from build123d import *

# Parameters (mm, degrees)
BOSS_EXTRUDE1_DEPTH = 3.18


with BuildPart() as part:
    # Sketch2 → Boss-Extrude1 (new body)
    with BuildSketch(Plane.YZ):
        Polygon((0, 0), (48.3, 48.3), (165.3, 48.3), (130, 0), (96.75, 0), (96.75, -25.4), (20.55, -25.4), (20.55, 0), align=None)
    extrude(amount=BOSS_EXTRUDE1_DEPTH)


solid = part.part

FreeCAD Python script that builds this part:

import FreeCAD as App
import Part
import Sketcher
from FreeCAD import Vector
Q = App.Units.Quantity

doc = App.newDocument("Part")
body = doc.addObject("PartDesign::Body", "Body")

# Sketch on YZ plane
sketch1 = body.newObject("Sketcher::SketchObject", "Sketch")
sketch1.AttachmentSupport = (doc.getObject("YZ_Plane"), [""])
sketch1.MapMode = "FlatFace"
sketch1.addGeometry([
    Part.LineSegment(Vector(48, 48, 0), Vector(0, 0, 0)),  # 0
    Part.LineSegment(Vector(0, 0, 0), Vector(21, 0, 0)),  # 1
    Part.LineSegment(Vector(21, 0, 0), Vector(21, -25, 0)),  # 2
    Part.LineSegment(Vector(21, -25, 0), Vector(97, -25, 0)),  # 3
    Part.LineSegment(Vector(97, -25, 0), Vector(97, 0, 0)),  # 4
    Part.LineSegment(Vector(97, 0, 0), Vector(130, 0, 0)),  # 5
    Part.LineSegment(Vector(130, 0, 0), Vector(165, 48, 0)),  # 6
    Part.LineSegment(Vector(165, 48, 0), Vector(48, 48, 0)),  # 7
], False)
sketch1.addConstraint([
    Sketcher.Constraint("Coincident", 0, 2, 1, 1),
    Sketcher.Constraint("Coincident", 1, 2, 2, 1),
    Sketcher.Constraint("Coincident", 2, 2, 3, 1),
    Sketcher.Constraint("Coincident", 3, 2, 4, 1),
    Sketcher.Constraint("Coincident", 4, 2, 5, 1),
    Sketcher.Constraint("Coincident", 5, 2, 6, 1),
    Sketcher.Constraint("Coincident", 6, 2, 7, 1),
    Sketcher.Constraint("Coincident", 7, 2, 0, 1),
    Sketcher.Constraint("Horizontal", 1),
    Sketcher.Constraint("Vertical", 2),
    Sketcher.Constraint("Horizontal", 3),
    Sketcher.Constraint("Vertical", 4),
    Sketcher.Constraint("Horizontal", 5),
    Sketcher.Constraint("Horizontal", 7),
    Sketcher.Constraint("Coincident", 0, 2, -1, 1),
    Sketcher.Constraint("PointOnObject", 4, 2, -1),
    Sketcher.Constraint("DistanceX", 3, 1, 3, 2, Q("3 in")),
    Sketcher.Constraint("DistanceY", 2, 2, 2, 1, Q("1 in")),
    Sketcher.Constraint("Angle", 0, Q("-135 deg")),
    Sketcher.Constraint("DistanceX", 1, 1, 1, 2, Q("20.55 mm")),
    Sketcher.Constraint("DistanceX", 5, 1, 5, 2, Q("33.25 mm")),
    Sketcher.Constraint("DistanceX", 7, 2, 7, 1, Q("117 mm")),
    Sketcher.Constraint("DistanceX", -1, 1, 6, 2, Q("165.3 mm")),
])
pad1 = body.newObject("PartDesign::Pad", "Pad")
pad1.Profile = sketch1
pad1.Length = 3.18

doc.recompute()
